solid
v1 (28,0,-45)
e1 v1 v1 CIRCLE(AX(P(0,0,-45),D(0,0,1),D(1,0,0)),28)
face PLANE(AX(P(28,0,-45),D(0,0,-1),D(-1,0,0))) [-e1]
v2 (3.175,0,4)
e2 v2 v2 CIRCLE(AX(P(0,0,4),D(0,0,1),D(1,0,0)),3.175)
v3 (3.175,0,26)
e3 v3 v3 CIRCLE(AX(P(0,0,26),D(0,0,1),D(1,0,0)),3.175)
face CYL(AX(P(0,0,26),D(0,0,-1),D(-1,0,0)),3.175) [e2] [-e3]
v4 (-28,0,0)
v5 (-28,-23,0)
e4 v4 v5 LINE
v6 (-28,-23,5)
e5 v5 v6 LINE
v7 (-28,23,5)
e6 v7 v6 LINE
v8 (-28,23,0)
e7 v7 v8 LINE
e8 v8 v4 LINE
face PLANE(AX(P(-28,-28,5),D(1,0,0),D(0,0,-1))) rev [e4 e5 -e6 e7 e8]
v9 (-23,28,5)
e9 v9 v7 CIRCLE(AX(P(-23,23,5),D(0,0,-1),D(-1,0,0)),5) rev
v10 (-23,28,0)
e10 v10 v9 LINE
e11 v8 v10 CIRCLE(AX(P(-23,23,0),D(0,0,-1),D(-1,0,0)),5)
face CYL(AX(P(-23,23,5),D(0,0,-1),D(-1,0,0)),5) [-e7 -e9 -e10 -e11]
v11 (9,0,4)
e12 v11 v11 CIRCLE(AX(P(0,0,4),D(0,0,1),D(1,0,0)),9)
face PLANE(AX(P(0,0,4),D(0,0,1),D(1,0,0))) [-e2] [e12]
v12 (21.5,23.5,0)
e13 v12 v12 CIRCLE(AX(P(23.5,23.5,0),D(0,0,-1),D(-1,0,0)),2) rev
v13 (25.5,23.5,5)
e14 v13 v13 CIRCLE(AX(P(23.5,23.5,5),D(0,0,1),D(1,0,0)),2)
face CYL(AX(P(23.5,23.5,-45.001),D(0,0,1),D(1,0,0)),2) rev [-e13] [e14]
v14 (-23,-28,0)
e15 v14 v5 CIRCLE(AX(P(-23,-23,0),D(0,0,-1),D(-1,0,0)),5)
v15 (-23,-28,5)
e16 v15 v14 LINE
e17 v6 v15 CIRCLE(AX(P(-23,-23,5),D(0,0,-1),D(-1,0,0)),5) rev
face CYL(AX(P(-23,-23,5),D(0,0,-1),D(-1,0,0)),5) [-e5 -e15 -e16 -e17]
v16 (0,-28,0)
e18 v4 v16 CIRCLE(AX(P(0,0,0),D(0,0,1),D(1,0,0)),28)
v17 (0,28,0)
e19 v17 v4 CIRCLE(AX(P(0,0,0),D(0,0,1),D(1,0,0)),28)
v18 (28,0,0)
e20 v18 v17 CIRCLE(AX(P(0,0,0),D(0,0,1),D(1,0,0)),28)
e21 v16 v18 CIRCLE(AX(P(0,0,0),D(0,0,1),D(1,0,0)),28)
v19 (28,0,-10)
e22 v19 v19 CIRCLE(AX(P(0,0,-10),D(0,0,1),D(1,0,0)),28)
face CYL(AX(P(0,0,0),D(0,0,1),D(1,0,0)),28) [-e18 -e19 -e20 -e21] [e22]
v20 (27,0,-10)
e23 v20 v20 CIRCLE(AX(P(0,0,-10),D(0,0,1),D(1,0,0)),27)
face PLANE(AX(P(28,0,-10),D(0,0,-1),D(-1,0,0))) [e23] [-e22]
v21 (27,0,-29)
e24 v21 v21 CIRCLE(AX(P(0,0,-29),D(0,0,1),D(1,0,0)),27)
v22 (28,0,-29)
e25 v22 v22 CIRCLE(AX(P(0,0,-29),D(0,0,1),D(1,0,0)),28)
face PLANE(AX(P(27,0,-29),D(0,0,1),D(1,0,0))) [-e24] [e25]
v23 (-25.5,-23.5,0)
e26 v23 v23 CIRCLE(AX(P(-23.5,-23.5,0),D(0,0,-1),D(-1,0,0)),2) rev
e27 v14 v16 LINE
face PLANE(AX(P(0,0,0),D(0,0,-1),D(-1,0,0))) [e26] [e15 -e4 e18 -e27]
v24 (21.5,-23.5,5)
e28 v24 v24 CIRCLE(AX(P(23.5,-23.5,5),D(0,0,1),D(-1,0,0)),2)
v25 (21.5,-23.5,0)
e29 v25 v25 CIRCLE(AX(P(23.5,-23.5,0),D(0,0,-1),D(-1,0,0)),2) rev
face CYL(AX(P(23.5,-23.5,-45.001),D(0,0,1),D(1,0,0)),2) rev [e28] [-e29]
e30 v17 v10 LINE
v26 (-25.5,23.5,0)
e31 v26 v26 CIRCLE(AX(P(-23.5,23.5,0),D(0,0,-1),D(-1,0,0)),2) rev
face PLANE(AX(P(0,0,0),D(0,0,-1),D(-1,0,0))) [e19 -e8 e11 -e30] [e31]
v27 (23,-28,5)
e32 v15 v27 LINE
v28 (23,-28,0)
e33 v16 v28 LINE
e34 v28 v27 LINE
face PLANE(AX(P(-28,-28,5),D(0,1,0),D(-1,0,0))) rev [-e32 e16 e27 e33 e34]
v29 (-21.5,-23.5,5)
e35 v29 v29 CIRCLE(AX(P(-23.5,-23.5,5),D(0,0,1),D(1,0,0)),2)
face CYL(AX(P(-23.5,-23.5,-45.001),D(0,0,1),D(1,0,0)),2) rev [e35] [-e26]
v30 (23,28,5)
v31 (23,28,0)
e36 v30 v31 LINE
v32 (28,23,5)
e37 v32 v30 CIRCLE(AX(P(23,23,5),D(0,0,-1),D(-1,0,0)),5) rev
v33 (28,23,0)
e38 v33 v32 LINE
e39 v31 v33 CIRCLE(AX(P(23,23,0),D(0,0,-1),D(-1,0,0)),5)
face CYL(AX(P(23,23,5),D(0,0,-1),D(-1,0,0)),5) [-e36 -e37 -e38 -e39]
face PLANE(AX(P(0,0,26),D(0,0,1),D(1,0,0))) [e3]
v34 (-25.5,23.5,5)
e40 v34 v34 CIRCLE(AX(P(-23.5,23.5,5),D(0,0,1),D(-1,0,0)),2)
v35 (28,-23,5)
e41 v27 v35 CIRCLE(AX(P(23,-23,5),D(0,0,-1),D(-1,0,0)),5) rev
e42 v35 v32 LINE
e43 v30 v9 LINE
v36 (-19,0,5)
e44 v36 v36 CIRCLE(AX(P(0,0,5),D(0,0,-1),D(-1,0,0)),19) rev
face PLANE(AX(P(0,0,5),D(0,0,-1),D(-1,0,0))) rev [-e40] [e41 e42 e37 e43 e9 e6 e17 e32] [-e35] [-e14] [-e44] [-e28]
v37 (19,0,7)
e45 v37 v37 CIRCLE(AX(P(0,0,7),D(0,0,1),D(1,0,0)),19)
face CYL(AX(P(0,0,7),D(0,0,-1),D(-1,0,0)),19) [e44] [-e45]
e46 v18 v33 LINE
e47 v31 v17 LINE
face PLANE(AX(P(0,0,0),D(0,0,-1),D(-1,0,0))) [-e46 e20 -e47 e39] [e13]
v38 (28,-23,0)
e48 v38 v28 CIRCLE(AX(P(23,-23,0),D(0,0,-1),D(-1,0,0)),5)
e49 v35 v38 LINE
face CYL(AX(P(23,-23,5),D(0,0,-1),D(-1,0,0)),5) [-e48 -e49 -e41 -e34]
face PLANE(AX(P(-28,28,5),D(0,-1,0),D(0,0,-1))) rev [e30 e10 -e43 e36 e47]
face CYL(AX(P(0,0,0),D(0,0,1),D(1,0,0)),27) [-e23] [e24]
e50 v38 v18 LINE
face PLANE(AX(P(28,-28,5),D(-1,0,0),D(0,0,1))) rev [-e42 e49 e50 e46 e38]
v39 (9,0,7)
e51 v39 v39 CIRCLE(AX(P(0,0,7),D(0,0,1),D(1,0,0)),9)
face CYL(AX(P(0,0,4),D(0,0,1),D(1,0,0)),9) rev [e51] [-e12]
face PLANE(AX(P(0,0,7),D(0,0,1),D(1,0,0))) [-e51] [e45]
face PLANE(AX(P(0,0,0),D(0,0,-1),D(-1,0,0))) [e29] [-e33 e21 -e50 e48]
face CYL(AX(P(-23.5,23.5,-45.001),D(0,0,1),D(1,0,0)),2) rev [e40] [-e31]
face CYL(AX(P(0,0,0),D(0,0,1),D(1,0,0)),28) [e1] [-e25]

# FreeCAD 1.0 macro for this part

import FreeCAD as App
import Part
import Sketcher

V = App.Vector
Q = App.Units.Quantity


def edges_at(feature, points):
    """Names of the edges that pass closest to the given points."""
    edges = feature.Shape.Edges
    near = lambda p: min(range(len(edges)), key=lambda i: edges[i].distToShape(Part.Vertex(*p))[0])
    return sorted({f"Edge{near(p) + 1}" for p in points})


def add_polygon(sketch, points):
    """Adds a closed chain of lines whose ends are joined by coincident constraints."""
    first, n = sketch.GeometryCount, len(points)
    for a, b in zip(points, points[1:] + points[:1]):
        sketch.addGeometry(Part.LineSegment(App.Vector(*a, 0), App.Vector(*b, 0)), False)
    for i in range(n):
        sketch.addConstraint(Sketcher.Constraint("Coincident", first + i, 2, first + (i + 1) % n, 1))

doc = App.newDocument("Part")
body = doc.addObject("PartDesign::Body", "Body")

# Sketch on XY plane
sketch1 = body.newObject("Sketcher::SketchObject", "Sketch")
sketch1.AttachmentSupport = (doc.getObject("XY_Plane"), [""])
sketch1.MapMode = "FlatFace"
add_polygon(sketch1, [(-28, 28), (-28, -28), (28, -28), (28, 28)])  # lines 0-3
sketch1.addConstraint([
    Sketcher.Constraint("Vertical", 0),
    Sketcher.Constraint("Horizontal", 1),
    Sketcher.Constraint("Vertical", 2),
    Sketcher.Constraint("Horizontal", 3),
    Sketcher.Constraint("Symmetric", 0, 2, 2, 2, -1, 1),
    Sketcher.Constraint("Equal", 3, 0),
    Sketcher.Constraint("DistanceX", 1, 1, 1, 2, Q("56 mm")),
])
pad1 = body.newObject("PartDesign::Pad", "Pad")
pad1.Profile = sketch1
pad1.Length = 5

# Sketch on XZ plane
sketch2 = body.newObject("Sketcher::SketchObject", "Sketch001")
sketch2.AttachmentSupport = (doc.getObject("XZ_Plane"), [""])
sketch2.MapMode = "FlatFace"
add_polygon(sketch2, [(0, 0), (28, 0), (28, -10), (27, -10), (27, -29), (28, -29), (28, -45), (0, -45)])  # lines 0-7
sketch2.addConstraint([
    Sketcher.Constraint("Horizontal", 0),
    Sketcher.Constraint("Vertical", 1),
    Sketcher.Constraint("Horizontal", 2),
    Sketcher.Constraint("Vertical", 3),
    Sketcher.Constraint("Horizontal", 4),
    Sketcher.Constraint("Vertical", 5),
    Sketcher.Constraint("Horizontal", 6),
    Sketcher.Constraint("Vertical", 7),
    Sketcher.Constraint("Coincident", 7, 2, -1, 1),
    Sketcher.Constraint("Vertical", 1, 2, 4, 2),
    Sketcher.Constraint("DistanceX", 0, 1, 0, 2, Q("28 mm")),
    Sketcher.Constraint("DistanceX", 2, 2, 2, 1, Q("1 mm")),
    Sketcher.Constraint("DistanceY", 1, 2, 1, 1, Q("10 mm")),
    Sketcher.Constraint("DistanceY", 3, 2, 3, 1, Q("19 mm")),
    Sketcher.Constraint("DistanceY", 5, 2, 5, 1, Q("16 mm")),
])
revolution = body.newObject("PartDesign::Revolution", "Revolution")
revolution.Profile = sketch2
revolution.ReferenceAxis = (sketch2, ["V_Axis"])
revolution.Angle = 360

# Sketch on XY plane
sketch3 = body.newObject("Sketcher::SketchObject", "Sketch002")
sketch3.AttachmentSupport = (doc.getObject("XY_Plane"), [""])
sketch3.MapMode = "FlatFace"
sketch3.AttachmentOffset = App.Placement(V(0, 0, 5), App.Rotation())
sketch3.addGeometry(Part.Circle(V(0, 0, 0), V(0, 0, 1), 19), False)
sketch3.addConstraint([
    Sketcher.Constraint("Coincident", 0, 3, -1, 1),
    Sketcher.Constraint("Diameter", 0, Q("38 mm")),
])
pad2 = body.newObject("PartDesign::Pad", "Pad001")
pad2.Profile = sketch3
pad2.Length = 2

# Sketch on XY plane
sketch4 = body.newObject("Sketcher::SketchObject", "Sketch003")
sketch4.AttachmentSupport = (doc.getObject("XY_Plane"), [""])
sketch4.MapMode = "FlatFace"
sketch4.AttachmentOffset = App.Placement(V(0, 0, 7), App.Rotation())
sketch4.addGeometry(Part.Circle(V(0, 0, 0), V(0, 0, 1), 9), False)
sketch4.addConstraint([
    Sketcher.Constraint("Coincident", 0, 3, -1, 1),
    Sketcher.Constraint("Diameter", 0, Q("18 mm")),
])
pocket1 = body.newObject("PartDesign::Pocket", "Pocket")
pocket1.Profile = sketch4
pocket1.Length = 3

# Sketch on XY plane
sketch5 = body.newObject("Sketcher::SketchObject", "Sketch004")
sketch5.AttachmentSupport = (doc.getObject("XY_Plane"), [""])
sketch5.MapMode = "FlatFace"
sketch5.AttachmentOffset = App.Placement(V(0, 0, 4), App.Rotation())
sketch5.addGeometry(Part.Circle(V(0, 0, 0), V(0, 0, 1), 3.2), False)
sketch5.addConstraint([
    Sketcher.Constraint("Coincident", 0, 3, -1, 1),
    Sketcher.Constraint("Diameter", 0, Q("6.35 mm")),
])
pad3 = body.newObject("PartDesign::Pad", "Pad002")
pad3.Profile = sketch5
pad3.Length = 22

# Sketch on XY plane
sketch6 = body.newObject("Sketcher::SketchObject", "Sketch005")
sketch6.AttachmentSupport = (doc.getObject("XY_Plane"), [""])
sketch6.MapMode = "FlatFace"
sketch6.AttachmentOffset = App.Placement(V(0, 0, 5), App.Rotation())
sketch6.addGeometry(Part.Circle(V(23.5, 23.5, 0), V(0, 0, 1), 2), False)
sketch6.addConstraint([
    Sketcher.Constraint("Diameter", 0, Q("4 mm")),
    Sketcher.Constraint("DistanceX", -1, 1, 0, 3, Q("23.5 mm")),
    Sketcher.Constraint("DistanceY", -1, 1, 0, 3, Q("23.5 mm")),
])
pocket2 = body.newObject("PartDesign::Pocket", "Pocket001")
pocket2.Profile = sketch6
pocket2.Type = "UpToFirst"

# Sketch on XY plane
sketch7 = body.newObject("Sketcher::SketchObject", "Sketch006")
sketch7.AttachmentSupport = (doc.getObject("XY_Plane"), [""])
sketch7.MapMode = "FlatFace"
sketch7.AttachmentOffset = App.Placement(V(0, 0, 5), App.Rotation())
sketch7.addGeometry(Part.Circle(V(-23.5, 23.5, 0), V(0, 0, 1), 2), False)
sketch7.addConstraint([
    Sketcher.Constraint("Diameter", 0, Q("4 mm")),
    Sketcher.Constraint("DistanceX", 0, 3, -1, 1, Q("23.5 mm")),
    Sketcher.Constraint("DistanceY", -1, 1, 0, 3, Q("23.5 mm")),
])
pocket3 = body.newObject("PartDesign::Pocket", "Pocket002")
pocket3.Profile = sketch7
pocket3.Type = "UpToFirst"

# Sketch on XY plane
sketch8 = body.newObject("Sketcher::SketchObject", "Sketch007")
sketch8.AttachmentSupport = (doc.getObject("XY_Plane"), [""])
sketch8.MapMode = "FlatFace"
sketch8.AttachmentOffset = App.Placement(V(0, 0, 5), App.Rotation())
sketch8.addGeometry(Part.Circle(V(23.5, -23.5, 0), V(0, 0, 1), 2), False)
sketch8.addConstraint([
    Sketcher.Constraint("Diameter", 0, Q("4 mm")),
    Sketcher.Constraint("DistanceX", -1, 1, 0, 3, Q("23.5 mm")),
    Sketcher.Constraint("DistanceY", 0, 3, -1, 1, Q("23.5 mm")),
])
pocket4 = body.newObject("PartDesign::Pocket", "Pocket003")
pocket4.Profile = sketch8
pocket4.Type = "UpToFirst"

# Sketch on XY plane
sketch9 = body.newObject("Sketcher::SketchObject", "Sketch008")
sketch9.AttachmentSupport = (doc.getObject("XY_Plane"), [""])
sketch9.MapMode = "FlatFace"
sketch9.AttachmentOffset = App.Placement(V(0, 0, 5), App.Rotation())
sketch9.addGeometry(Part.Circle(V(-23.5, -23.5, 0), V(0, 0, 1), 2), False)
sketch9.addConstraint([
    Sketcher.Constraint("Diameter", 0, Q("4 mm")),
    Sketcher.Constraint("DistanceX", 0, 3, -1, 1, Q("23.5 mm")),
    Sketcher.Constraint("DistanceY", 0, 3, -1, 1, Q("23.5 mm")),
])
pocket5 = body.newObject("PartDesign::Pocket", "Pocket004")
pocket5.Profile = sketch9
pocket5.Type = "UpToFirst"
doc.recompute()

fillet = body.newObject("PartDesign::Fillet", "Fillet")
fillet.Base = (pocket5, edges_at(pocket5, [
    (-28, 28, 2.5),
    (28, 28, 2.5),
    (28, -28, 2.5),
    (-28, -28, 2.5),
]))
fillet.Radius = 5

doc.recompute()
